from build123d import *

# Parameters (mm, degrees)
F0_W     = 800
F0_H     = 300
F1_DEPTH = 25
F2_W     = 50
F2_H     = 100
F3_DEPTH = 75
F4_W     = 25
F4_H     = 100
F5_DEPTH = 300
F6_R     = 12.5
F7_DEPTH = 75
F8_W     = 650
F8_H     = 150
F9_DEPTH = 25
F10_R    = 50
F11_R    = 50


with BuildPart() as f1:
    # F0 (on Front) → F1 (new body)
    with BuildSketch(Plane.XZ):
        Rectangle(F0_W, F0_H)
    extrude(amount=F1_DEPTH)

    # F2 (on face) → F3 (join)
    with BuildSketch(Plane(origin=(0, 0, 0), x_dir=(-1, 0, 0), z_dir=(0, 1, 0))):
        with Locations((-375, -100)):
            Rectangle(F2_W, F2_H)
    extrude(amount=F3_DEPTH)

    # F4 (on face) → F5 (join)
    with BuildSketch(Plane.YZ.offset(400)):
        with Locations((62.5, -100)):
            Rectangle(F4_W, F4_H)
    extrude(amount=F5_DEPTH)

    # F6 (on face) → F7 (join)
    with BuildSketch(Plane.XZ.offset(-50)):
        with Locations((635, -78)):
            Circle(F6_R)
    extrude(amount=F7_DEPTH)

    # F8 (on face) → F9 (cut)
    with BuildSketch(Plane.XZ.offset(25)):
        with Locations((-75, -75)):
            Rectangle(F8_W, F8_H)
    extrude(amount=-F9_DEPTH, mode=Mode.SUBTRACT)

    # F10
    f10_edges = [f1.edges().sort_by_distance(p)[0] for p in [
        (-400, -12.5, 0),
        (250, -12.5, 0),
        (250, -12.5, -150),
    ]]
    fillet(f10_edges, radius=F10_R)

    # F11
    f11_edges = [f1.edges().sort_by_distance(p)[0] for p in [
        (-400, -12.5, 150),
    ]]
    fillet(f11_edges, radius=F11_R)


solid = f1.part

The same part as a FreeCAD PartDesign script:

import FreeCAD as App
import Part
import Sketcher


def edges_at(feature, points):
    """Names of the edges that pass closest to the given points."""
    edges = feature.Shape.Edges
    near = lambda p: min(range(len(edges)), key=lambda i: edges[i].distToShape(Part.Vertex(*p))[0])
    return sorted({f"Edge{near(p) + 1}" for p in points})

doc = App.newDocument("Part")
body = doc.addObject("PartDesign::Body", "Body")

# Sketch on XZ plane
sketch1 = body.newObject("Sketcher::SketchObject", "Sketch")
sketch1.AttachmentSupport = (doc.getObject("XZ_Plane"), [""])
sketch1.MapMode = "FlatFace"
sketch1.addGeometry([
    Part.LineSegment(App.Vector(-400, 150, 0), App.Vector(-400, -150, 0)),
    Part.LineSegment(App.Vector(-400, -150, 0), App.Vector(400, -150, 0)),
    Part.LineSegment(App.Vector(400, -150, 0), App.Vector(400, 150, 0)),
    Part.LineSegment(App.Vector(400, 150, 0), App.Vector(-400, 150, 0)),
], False)
sketch1.addConstraint([
    Sketcher.Constraint("Coincident", 0, 2, 1, 1),
    Sketcher.Constraint("Coincident", 1, 2, 2, 1),
    Sketcher.Constraint("Coincident", 2, 2, 3, 1),
    Sketcher.Constraint("Coincident", 3, 2, 0, 1),
    Sketcher.Constraint("Vertical", 0),
    Sketcher.Constraint("Horizontal", 1),
    Sketcher.Constraint("Vertical", 2),
    Sketcher.Constraint("Horizontal", 3),
    Sketcher.Constraint("Symmetric", 0, 2, 2, 2, -1, 1),
    Sketcher.Constraint("DistanceX", 1, 1, 1, 2, 800.0),
    Sketcher.Constraint("DistanceY", 0, 2, 0, 1, 300.0),
])
pad1 = body.newObject("PartDesign::Pad", "Pad")
pad1.Profile = sketch1
pad1.Length = 25

# Sketch on XZ plane
sketch2 = body.newObject("Sketcher::SketchObject", "Sketch001")
sketch2.AttachmentSupport = (doc.getObject("XZ_Plane"), [""])
sketch2.MapMode = "FlatFace"
sketch2.addGeometry([
    Part.LineSegment(App.Vector(400, -50, 0), App.Vector(400, -150, 0)),
    Part.LineSegment(App.Vector(400, -150, 0), App.Vector(350, -150, 0)),
    Part.LineSegment(App.Vector(350, -150, 0), App.Vector(350, -50, 0)),
    Part.LineSegment(App.Vector(350, -50, 0), App.Vector(400, -50, 0)),
], False)
sketch2.addConstraint([
    Sketcher.Constraint("Coincident", 0, 2, 1, 1),
    Sketcher.Constraint("Coincident", 1, 2, 2, 1),
    Sketcher.Constraint("Coincident", 2, 2, 3, 1),
    Sketcher.Constraint("Coincident", 3, 2, 0, 1),
    Sketcher.Constraint("Vertical", 0),
    Sketcher.Constraint("Horizontal", 1),
    Sketcher.Constraint("Vertical", 2),
    Sketcher.Constraint("Horizontal", 3),
    Sketcher.Constraint("DistanceX", 1, 2, 1, 1, 50.0),
    Sketcher.Constraint("DistanceY", 0, 2, 0, 1, 100.0),
    Sketcher.Constraint("DistanceX", -1, 1, 0, 2, 400.0),
    Sketcher.Constraint("DistanceY", 0, 2, -1, 1, 150.0),
])
pad2 = body.newObject("PartDesign::Pad", "Pad001")
pad2.Profile = sketch2
pad2.Length = 75
pad2.Reversed = True

# Sketch on YZ plane
sketch3 = body.newObject("Sketcher::SketchObject", "Sketch002")
sketch3.AttachmentSupport = (doc.getObject("YZ_Plane"), [""])
sketch3.MapMode = "FlatFace"
sketch3.AttachmentOffset = App.Placement(App.Vector(0, 0, 400), App.Rotation())
sketch3.addGeometry([
    Part.LineSegment(App.Vector(50, -50, 0), App.Vector(50, -150, 0)),
    Part.LineSegment(App.Vector(50, -150, 0), App.Vector(75, -150, 0)),
    Part.LineSegment(App.Vector(75, -150, 0), App.Vector(75, -50, 0)),
    Part.LineSegment(App.Vector(75, -50, 0), App.Vector(50, -50, 0)),
], False)
sketch3.addConstraint([
    Sketcher.Constraint("Coincident", 0, 2, 1, 1),
    Sketcher.Constraint("Coincident", 1, 2, 2, 1),
    Sketcher.Constraint("Coincident", 2, 2, 3, 1),
    Sketcher.Constraint("Coincident", 3, 2, 0, 1),
    Sketcher.Constraint("Vertical", 0),
    Sketcher.Constraint("Horizontal", 1),
    Sketcher.Constraint("Vertical", 2),
    Sketcher.Constraint("Horizontal", 3),
    Sketcher.Constraint("DistanceX", 1, 1, 1, 2, 25.0),
    Sketcher.Constraint("DistanceY", 0, 2, 0, 1, 100.0),
    Sketcher.Constraint("DistanceX", -1, 1, 0, 2, 50.0),
    Sketcher.Constraint("DistanceY", 0, 2, -1, 1, 150.0),
])
pad3 = body.newObject("PartDesign::Pad", "Pad002")
pad3.Profile = sketch3
pad3.Length = 300

# Sketch on XZ plane
sketch4 = body.newObject("Sketcher::SketchObject", "Sketch003")
sketch4.AttachmentSupport = (doc.getObject("XZ_Plane"), [""])
sketch4.MapMode = "FlatFace"
sketch4.AttachmentOffset = App.Placement(App.Vector(0, 0, -50), App.Rotation())
sketch4.addGeometry(Part.Circle(App.Vector(635, -78, 0), App.Vector(0, 0, 1), 12), False)
sketch4.addConstraint([
    Sketcher.Constraint("Diameter", 0, 25.0),
    Sketcher.Constraint("DistanceX", -1, 1, 0, 3, 635.0),
    Sketcher.Constraint("DistanceY", 0, 3, -1, 1, 78.0),
])
pad4 = body.newObject("PartDesign::Pad", "Pad003")
pad4.Profile = sketch4
pad4.Length = 75

# Sketch on XZ plane
sketch5 = body.newObject("Sketcher::SketchObject", "Sketch004")
sketch5.AttachmentSupport = (doc.getObject("XZ_Plane"), [""])
sketch5.MapMode = "FlatFace"
sketch5.AttachmentOffset = App.Placement(App.Vector(0, 0, 25), App.Rotation())
sketch5.addGeometry([
    Part.LineSegment(App.Vector(-400, 0, 0), App.Vector(-400, -150, 0)),
    Part.LineSegment(App.Vector(-400, -150, 0), App.Vector(250, -150, 0)),
    Part.LineSegment(App.Vector(250, -150, 0), App.Vector(250, 0, 0)),
    Part.LineSegment(App.Vector(250, 0, 0), App.Vector(-400, 0, 0)),
], False)
sketch5.addConstraint([
    Sketcher.Constraint("Coincident", 0, 2, 1, 1),
    Sketcher.Constraint("Coincident", 1, 2, 2, 1),
    Sketcher.Constraint("Coincident", 2, 2, 3, 1),
    Sketcher.Constraint("Coincident", 3, 2, 0, 1),
    Sketcher.Constraint("Vertical", 0),
    Sketcher.Constraint("Horizontal", 1),
    Sketcher.Constraint("Vertical", 2),
    Sketcher.Constraint("Horizontal", 3),
    Sketcher.Constraint("PointOnObject", 2, 2, -1),
    Sketcher.Constraint("DistanceX", 1, 1, 1, 2, 650.0),
    Sketcher.Constraint("DistanceY", 0, 2, 0, 1, 150.0),
    Sketcher.Constraint("DistanceX", 0, 2, -1, 1, 400.0),
])
pocket1 = body.newObject("PartDesign::Pocket", "Pocket")
pocket1.Profile = sketch5
pocket1.Length = 25
doc.recompute()

fillet = body.newObject("PartDesign::Fillet", "Fillet")
fillet.Base = (pocket1, edges_at(pocket1, [(-400, -12.5, 0), (250, -12.5, 0), (250, -12.5, -150)]))
fillet.Radius = 50
doc.recompute()

fillet2 = body.newObject("PartDesign::Fillet", "Fillet001")
fillet2.Base = (fillet, edges_at(fillet, [(-400, -12.5, 150)]))
fillet2.Radius = 50

doc.recompute()
